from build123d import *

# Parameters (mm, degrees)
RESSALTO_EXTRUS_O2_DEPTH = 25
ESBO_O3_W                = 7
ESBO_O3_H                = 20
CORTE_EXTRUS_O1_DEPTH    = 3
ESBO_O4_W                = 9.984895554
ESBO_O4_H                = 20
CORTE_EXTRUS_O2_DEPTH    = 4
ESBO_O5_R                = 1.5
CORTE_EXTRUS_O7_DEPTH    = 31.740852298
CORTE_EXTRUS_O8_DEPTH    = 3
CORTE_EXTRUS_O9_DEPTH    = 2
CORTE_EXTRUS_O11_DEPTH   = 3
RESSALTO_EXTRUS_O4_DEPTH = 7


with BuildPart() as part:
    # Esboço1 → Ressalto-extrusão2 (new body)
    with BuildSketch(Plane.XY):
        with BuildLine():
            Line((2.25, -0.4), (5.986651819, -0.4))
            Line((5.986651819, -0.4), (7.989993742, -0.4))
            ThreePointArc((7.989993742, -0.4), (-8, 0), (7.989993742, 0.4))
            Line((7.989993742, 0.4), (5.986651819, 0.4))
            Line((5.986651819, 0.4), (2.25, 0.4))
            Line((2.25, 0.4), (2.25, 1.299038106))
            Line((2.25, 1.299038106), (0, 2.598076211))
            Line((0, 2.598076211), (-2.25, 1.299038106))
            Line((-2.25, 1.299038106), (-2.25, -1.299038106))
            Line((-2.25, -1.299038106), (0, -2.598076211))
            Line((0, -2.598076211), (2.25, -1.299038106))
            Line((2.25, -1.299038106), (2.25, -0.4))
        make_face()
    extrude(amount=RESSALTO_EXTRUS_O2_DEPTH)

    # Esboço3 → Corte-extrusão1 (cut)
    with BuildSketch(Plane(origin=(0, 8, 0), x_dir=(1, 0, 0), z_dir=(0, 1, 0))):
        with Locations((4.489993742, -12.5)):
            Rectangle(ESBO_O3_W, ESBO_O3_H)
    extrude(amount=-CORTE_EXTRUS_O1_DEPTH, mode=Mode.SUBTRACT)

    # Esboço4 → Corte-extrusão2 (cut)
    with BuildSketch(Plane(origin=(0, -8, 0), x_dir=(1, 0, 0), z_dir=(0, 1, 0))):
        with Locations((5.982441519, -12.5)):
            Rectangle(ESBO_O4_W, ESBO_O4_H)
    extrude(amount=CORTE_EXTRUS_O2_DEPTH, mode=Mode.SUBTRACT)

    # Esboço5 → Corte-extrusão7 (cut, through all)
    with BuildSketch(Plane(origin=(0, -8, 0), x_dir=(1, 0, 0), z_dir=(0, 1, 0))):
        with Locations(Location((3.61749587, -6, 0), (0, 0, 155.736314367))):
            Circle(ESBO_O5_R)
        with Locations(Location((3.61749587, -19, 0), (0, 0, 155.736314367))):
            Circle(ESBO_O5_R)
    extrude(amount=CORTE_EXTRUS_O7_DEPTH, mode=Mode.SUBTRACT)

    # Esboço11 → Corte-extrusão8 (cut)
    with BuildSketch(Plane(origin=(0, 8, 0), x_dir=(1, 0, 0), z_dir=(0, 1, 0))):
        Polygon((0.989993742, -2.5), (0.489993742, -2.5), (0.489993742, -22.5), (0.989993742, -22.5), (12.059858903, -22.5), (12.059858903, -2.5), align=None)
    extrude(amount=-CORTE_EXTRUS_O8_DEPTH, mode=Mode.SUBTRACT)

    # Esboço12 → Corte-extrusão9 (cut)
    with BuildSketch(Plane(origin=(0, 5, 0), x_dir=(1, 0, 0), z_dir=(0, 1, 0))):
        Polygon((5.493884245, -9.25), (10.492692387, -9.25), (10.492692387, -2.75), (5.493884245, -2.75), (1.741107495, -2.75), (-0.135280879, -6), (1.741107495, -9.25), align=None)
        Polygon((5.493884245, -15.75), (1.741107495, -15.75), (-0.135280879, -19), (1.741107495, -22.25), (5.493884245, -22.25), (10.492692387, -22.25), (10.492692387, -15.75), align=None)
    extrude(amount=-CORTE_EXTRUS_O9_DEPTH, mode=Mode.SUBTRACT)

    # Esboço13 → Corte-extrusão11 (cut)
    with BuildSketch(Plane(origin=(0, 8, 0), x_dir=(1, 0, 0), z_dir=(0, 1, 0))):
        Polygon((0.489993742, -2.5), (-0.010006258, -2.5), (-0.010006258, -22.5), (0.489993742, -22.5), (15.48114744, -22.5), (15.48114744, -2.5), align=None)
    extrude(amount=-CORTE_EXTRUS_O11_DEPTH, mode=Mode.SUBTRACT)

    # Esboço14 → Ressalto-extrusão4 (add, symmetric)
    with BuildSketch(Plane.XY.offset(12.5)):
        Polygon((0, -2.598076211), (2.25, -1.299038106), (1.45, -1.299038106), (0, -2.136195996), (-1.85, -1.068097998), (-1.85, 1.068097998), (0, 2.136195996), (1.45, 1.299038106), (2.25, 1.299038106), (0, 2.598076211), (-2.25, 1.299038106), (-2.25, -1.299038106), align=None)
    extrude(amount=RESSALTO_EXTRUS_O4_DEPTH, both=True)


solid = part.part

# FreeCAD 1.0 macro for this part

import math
import FreeCAD as App
import Part
import Sketcher
Q = App.Units.Quantity

doc = App.newDocument("Part")
body = doc.addObject("PartDesign::Body", "Body")

# Sketch on XY plane
sketch1 = body.newObject("Sketcher::SketchObject", "Sketch")
sketch1.AttachmentSupport = (doc.getObject("XY_Plane"), [""])
sketch1.MapMode = "FlatFace"
sketch1.addGeometry([
    Part.LineSegment(App.Vector(8, -0.4, 0), App.Vector(2.2, -0.4, 0)),  # 0
    Part.LineSegment(App.Vector(2.2, -0.4, 0), App.Vector(2.2, -1.3, 0)),  # 1
    Part.LineSegment(App.Vector(2.2, -1.3, 0), App.Vector(0, -2.6, 0)),  # 2
    Part.LineSegment(App.Vector(0, -2.6, 0), App.Vector(-2.2, -1.3, 0)),  # 3
    Part.LineSegment(App.Vector(-2.2, -1.3, 0), App.Vector(-2.2, 1.3, 0)),  # 4
    Part.LineSegment(App.Vector(-2.2, 1.3, 0), App.Vector(0, 2.6, 0)),  # 5
    Part.LineSegment(App.Vector(0, 2.6, 0), App.Vector(2.2, 1.3, 0)),  # 6
    Part.LineSegment(App.Vector(2.2, 1.3, 0), App.Vector(2.2, 0.4, 0)),  # 7
    Part.LineSegment(App.Vector(2.2, 0.4, 0), App.Vector(8, 0.4, 0)),  # 8
    Part.ArcOfCircle(Part.Circle(App.Vector(0, 0, 0), App.Vector(0, 0, 1), 8), math.radians(3), math.radians(357)),  # 9
], False)
sketch1.addConstraint([
    Sketcher.Constraint("Coincident", 0, 2, 1, 1),
    Sketcher.Constraint("Coincident", 1, 2, 2, 1),
    Sketcher.Constraint("Coincident", 2, 2, 3, 1),
    Sketcher.Constraint("Coincident", 3, 2, 4, 1),
    Sketcher.Constraint("Coincident", 4, 2, 5, 1),
    Sketcher.Constraint("Coincident", 5, 2, 6, 1),
    Sketcher.Constraint("Coincident", 6, 2, 7, 1),
    Sketcher.Constraint("Coincident", 7, 2, 8, 1),
    Sketcher.Constraint("Coincident", 8, 2, 9, 1),
    Sketcher.Constraint("Coincident", 9, 2, 0, 1),
    Sketcher.Constraint("Horizontal", 0),
    Sketcher.Constraint("Vertical", 1),
    Sketcher.Constraint("Vertical", 4),
    Sketcher.Constraint("Vertical", 7),
    Sketcher.Constraint("Horizontal", 8),
    Sketcher.Constraint("Coincident", 9, 3, -1, 1),
    Sketcher.Constraint("Symmetric", 1, 2, 4, 2, -1, 1),
    Sketcher.Constraint("Symmetric", 2, 2, 5, 2, -1, 1),
    Sketcher.Constraint("Symmetric", 3, 2, 6, 2, -1, 1),
    Sketcher.Constraint("PointOnObject", 2, 2, -2),
    Sketcher.Constraint("Horizontal", 1, 2, 3, 2),
    Sketcher.Constraint("Vertical", 8, 2, 9, 2),
    Sketcher.Constraint("Radius", 9, Q("8 mm")),
    Sketcher.Constraint("Angle", 2, Q("-150 deg")),
    Sketcher.Constraint("DistanceY", 0, 2, -1, 1, Q("0.4 mm")),
    Sketcher.Constraint("DistanceX", 3, 2, 1, 2, Q("4.5 mm")),
    Sketcher.Constraint("DistanceY", 1, 2, 1, 1, Q("0.899038 mm")),
])
pad1 = body.newObject("PartDesign::Pad", "Pad")
pad1.Profile = sketch1
pad1.Length = 25

# Sketch on XZ plane
sketch2 = body.newObject("Sketcher::SketchObject", "Sketch001")
sketch2.AttachmentSupport = (doc.getObject("XZ_Plane"), [""])
sketch2.MapMode = "FlatFace"
sketch2.AttachmentOffset = App.Placement(App.Vector(0, 0, -8), App.Rotation())
sketch2.addGeometry([
    Part.LineSegment(App.Vector(1, 2, 0), App.Vector(1, 22, 0)),
    Part.LineSegment(App.Vector(1, 22, 0), App.Vector(8, 22, 0)),
    Part.LineSegment(App.Vector(8, 22, 0), App.Vector(8, 2, 0)),
    Part.LineSegment(App.Vector(8, 2, 0), App.Vector(1, 2, 0)),
], False)
sketch2.addConstraint([
    Sketcher.Constraint("Coincident", 0, 2, 1, 1),
    Sketcher.Constraint("Coincident", 1, 2, 2, 1),
    Sketcher.Constraint("Coincident", 2, 2, 3, 1),
    Sketcher.Constraint("Coincident", 3, 2, 0, 1),
    Sketcher.Constraint("Vertical", 0),
    Sketcher.Constraint("Horizontal", 1),
    Sketcher.Constraint("Vertical", 2),
    Sketcher.Constraint("Horizontal", 3),
    Sketcher.Constraint("DistanceX", 1, 1, 1, 2, Q("7 mm")),
    Sketcher.Constraint("DistanceY", 0, 1, 0, 2, Q("20 mm")),
    Sketcher.Constraint("DistanceY", -1, 1, 0, 2, Q("22.5 mm")),
    Sketcher.Constraint("DistanceX", -1, 1, 0, 2, Q("0.989994 mm")),
])
pocket1 = body.newObject("PartDesign::Pocket", "Pocket")
pocket1.Profile = sketch2
pocket1.Length = 3
pocket1.Reversed = True

# Sketch on XZ plane
sketch3 = body.newObject("Sketcher::SketchObject", "Sketch002")
sketch3.AttachmentSupport = (doc.getObject("XZ_Plane"), [""])
sketch3.MapMode = "FlatFace"
sketch3.AttachmentOffset = App.Placement(App.Vector(0, 0, 8), App.Rotation())
sketch3.addGeometry([
    Part.LineSegment(App.Vector(1, 2, 0), App.Vector(1, 22, 0)),
    Part.LineSegment(App.Vector(1, 22, 0), App.Vector(11, 22, 0)),
    Part.LineSegment(App.Vector(11, 22, 0), App.Vector(11, 2, 0)),
    Part.LineSegment(App.Vector(11, 2, 0), App.Vector(1, 2, 0)),
], False)
sketch3.addConstraint([
    Sketcher.Constraint("Coincident", 0, 2, 1, 1),
    Sketcher.Constraint("Coincident", 1, 2, 2, 1),
    Sketcher.Constraint("Coincident", 2, 2, 3, 1),
    Sketcher.Constraint("Coincident", 3, 2, 0, 1),
    Sketcher.Constraint("Vertical", 0),
    Sketcher.Constraint("Horizontal", 1),
    Sketcher.Constraint("Vertical", 2),
    Sketcher.Constraint("Horizontal", 3),
    Sketcher.Constraint("DistanceY", 0, 1, 0, 2, Q("20 mm")),
    Sketcher.Constraint("DistanceY", -1, 1, 0, 2, Q("22.5 mm")),
    Sketcher.Constraint("DistanceX", 1, 1, 1, 2, Q("9.984896 mm")),
    Sketcher.Constraint("DistanceX", -1, 1, 1, 2, Q("10.974889 mm")),
])
pocket2 = body.newObject("PartDesign::Pocket", "Pocket001")
pocket2.Profile = sketch3
pocket2.Length = 4

# Sketch on XZ plane
sketch4 = body.newObject("Sketcher::SketchObject", "Sketch003")
sketch4.AttachmentSupport = (doc.getObject("XZ_Plane"), [""])
sketch4.MapMode = "FlatFace"
sketch4.AttachmentOffset = App.Placement(App.Vector(0, 0, 8), App.Rotation())
sketch4.addGeometry([
    Part.Circle(App.Vector(3.6, 6, 0), App.Vector(0, 0, 1), 1.5),
    Part.Circle(App.Vector(3.6, 19, 0), App.Vector(0, 0, 1), 1.5),
], False)
sketch4.addConstraint([
    Sketcher.Constraint("Equal", 0, 1),
    Sketcher.Constraint("Vertical", 0, 3, 1, 3),
    Sketcher.Constraint("Diameter", 0, Q("3 mm")),
    Sketcher.Constraint("DistanceY", -1, 1, 0, 3, Q("6 mm")),
    Sketcher.Constraint("DistanceY", -1, 1, 1, 3, Q("19 mm")),
    Sketcher.Constraint("DistanceX", -1, 1, 0, 3, Q("3.617496 mm")),
])
pocket3 = body.newObject("PartDesign::Pocket", "Pocket002")
pocket3.Profile = sketch4
pocket3.Type = "ThroughAll"

# Sketch on XZ plane
sketch5 = body.newObject("Sketcher::SketchObject", "Sketch004")
sketch5.AttachmentSupport = (doc.getObject("XZ_Plane"), [""])
sketch5.MapMode = "FlatFace"
sketch5.AttachmentOffset = App.Placement(App.Vector(0, 0, -8), App.Rotation())
sketch5.addGeometry([
    Part.LineSegment(App.Vector(0, 2, 0), App.Vector(0, 22, 0)),
    Part.LineSegment(App.Vector(0, 22, 0), App.Vector(12, 22, 0)),
    Part.LineSegment(App.Vector(12, 22, 0), App.Vector(12, 2, 0)),
    Part.LineSegment(App.Vector(12, 2, 0), App.Vector(0, 2, 0)),
], False)
sketch5.addConstraint([
    Sketcher.Constraint("Coincident", 0, 2, 1, 1),
    Sketcher.Constraint("Coincident", 1, 2, 2, 1),
    Sketcher.Constraint("Coincident", 2, 2, 3, 1),
    Sketcher.Constraint("Coincident", 3, 2, 0, 1),
    Sketcher.Constraint("Vertical", 0),
    Sketcher.Constraint("Horizontal", 1),
    Sketcher.Constraint("Vertical", 2),
    Sketcher.Constraint("Horizontal", 3),
    Sketcher.Constraint("DistanceY", 0, 1, 0, 2, Q("20 mm")),
    Sketcher.Constraint("DistanceY", -1, 1, 0, 2, Q("22.5 mm")),
    Sketcher.Constraint("DistanceX", 1, 1, 1, 2, Q("11.569865 mm")),
    Sketcher.Constraint("DistanceX", -1, 1, 1, 2, Q("12.059859 mm")),
])
pocket4 = body.newObject("PartDesign::Pocket", "Pocket003")
pocket4.Profile = sketch5
pocket4.Length = 3
pocket4.Reversed = True

# Sketch on XZ plane
sketch6 = body.newObject("Sketcher::SketchObject", "Sketch005")
sketch6.AttachmentSupport = (doc.getObject("XZ_Plane"), [""])
sketch6.MapMode = "FlatFace"
sketch6.AttachmentOffset = App.Placement(App.Vector(0, 0, -5), App.Rotation())
sketch6.addGeometry([
    Part.LineSegment(App.Vector(10.5, 9.2, 0), App.Vector(10.5, 2.8, 0)),  # 0
    Part.LineSegment(App.Vector(10.5, 2.8, 0), App.Vector(1.7, 2.8, 0)),  # 1
    Part.LineSegment(App.Vector(1.7, 2.8, 0), App.Vector(-0.1, 6, 0)),  # 2
    Part.LineSegment(App.Vector(-0.1, 6, 0), App.Vector(1.7, 9.2, 0)),  # 3
    Part.LineSegment(App.Vector(1.7, 9.2, 0), App.Vector(10.5, 9.2, 0)),  # 4
    Part.LineSegment(App.Vector(1.7, 15.8, 0), App.Vector(-0.1, 19, 0)),  # 5
    Part.LineSegment(App.Vector(-0.1, 19, 0), App.Vector(1.7, 22.2, 0)),  # 6
    Part.LineSegment(App.Vector(1.7, 22.2, 0), App.Vector(10.5, 22.2, 0)),  # 7
    Part.LineSegment(App.Vector(10.5, 22.2, 0), App.Vector(10.5, 15.8, 0)),  # 8
    Part.LineSegment(App.Vector(10.5, 15.8, 0), App.Vector(1.7, 15.8, 0)),  # 9
], False)
sketch6.addConstraint([
    Sketcher.Constraint("Coincident", 0, 2, 1, 1),
    Sketcher.Constraint("Coincident", 1, 2, 2, 1),
    Sketcher.Constraint("Coincident", 2, 2, 3, 1),
    Sketcher.Constraint("Coincident", 3, 2, 4, 1),
    Sketcher.Constraint("Coincident", 4, 2, 0, 1),
    Sketcher.Constraint("Coincident", 5, 2, 6, 1),
    Sketcher.Constraint("Coincident", 6, 2, 7, 1),
    Sketcher.Constraint("Coincident", 7, 2, 8, 1),
    Sketcher.Constraint("Coincident", 8, 2, 9, 1),
    Sketcher.Constraint("Coincident", 9, 2, 5, 1),
    Sketcher.Constraint("Vertical", 0),
    Sketcher.Constraint("Horizontal", 1),
    Sketcher.Constraint("Horizontal", 4),
    Sketcher.Constraint("Horizontal", 7),
    Sketcher.Constraint("Vertical", 8),
    Sketcher.Constraint("Horizontal", 9),
    Sketcher.Constraint("Parallel", 2, 5),
    Sketcher.Constraint("Parallel", 3, 6),
    Sketcher.Constraint("Vertical", 1, 2, 3, 2),
    Sketcher.Constraint("Vertical", 2, 2, 5, 2),
    Sketcher.Constraint("Vertical", 3, 2, 6, 2),
    Sketcher.Constraint("Vertical", 4, 2, 7, 2),
    Sketcher.Constraint("Vertical", 6, 2, 9, 2),
    Sketcher.Constraint("Equal", 2, 3),
    Sketcher.Constraint("Angle", 2, Q("120 deg")),
    Sketcher.Constraint("DistanceY", 0, 2, 0, 1, Q("6.5 mm")),
    Sketcher.Constraint("DistanceY", -1, 1, 2, 2, Q("6 mm")),
    Sketcher.Constraint("DistanceY", -1, 1, 5, 2, Q("19 mm")),
    Sketcher.Constraint("DistanceX", 1, 2, 1, 1, Q("8.751585 mm")),
    Sketcher.Constraint("DistanceX", 2, 2, -1, 1, Q("0.135281 mm")),
])
pocket5 = body.newObject("PartDesign::Pocket", "Pocket004")
pocket5.Profile = sketch6
pocket5.Length = 2
pocket5.Reversed = True

# Sketch on XZ plane
sketch7 = body.newObject("Sketcher::SketchObject", "Sketch006")
sketch7.AttachmentSupport = (doc.getObject("XZ_Plane"), [""])
sketch7.MapMode = "FlatFace"
sketch7.AttachmentOffset = App.Placement(App.Vector(0, 0, -8), App.Rotation())
sketch7.addGeometry([
    Part.LineSegment(App.Vector(0, 2, 0), App.Vector(0, 22, 0)),
    Part.LineSegment(App.Vector(0, 22, 0), App.Vector(15, 22, 0)),
    Part.LineSegment(App.Vector(15, 22, 0), App.Vector(15, 2, 0)),
    Part.LineSegment(App.Vector(15, 2, 0), App.Vector(0, 2, 0)),
], False)
sketch7.addConstraint([
    Sketcher.Constraint("Coincident", 0, 2, 1, 1),
    Sketcher.Constraint("Coincident", 1, 2, 2, 1),
    Sketcher.Constraint("Coincident", 2, 2, 3, 1),
    Sketcher.Constraint("Coincident", 3, 2, 0, 1),
    Sketcher.Constraint("Vertical", 0),
    Sketcher.Constraint("Horizontal", 1),
    Sketcher.Constraint("Vertical", 2),
    Sketcher.Constraint("Horizontal", 3),
    Sketcher.Constraint("DistanceY", 0, 1, 0, 2, Q("20 mm")),
    Sketcher.Constraint("DistanceY", -1, 1, 0, 2, Q("22.5 mm")),
    Sketcher.Constraint("DistanceX", 1, 1, 1, 2, Q("15.491154 mm")),
    Sketcher.Constraint("DistanceX", 0, 2, -1, 1, Q("0.010006 mm")),
])
pocket6 = body.newObject("PartDesign::Pocket", "Pocket005")
pocket6.Profile = sketch7
pocket6.Length = 3
pocket6.Reversed = True

# Sketch on XY plane
sketch8 = body.newObject("Sketcher::SketchObject", "Sketch007")
sketch8.AttachmentSupport = (doc.getObject("XY_Plane"), [""])
sketch8.MapMode = "FlatFace"
sketch8.AttachmentOffset = App.Placement(App.Vector(0, 0, 12.5), App.Rotation())
sketch8.addGeometry([
    Part.LineSegment(App.Vector(0, -2.6, 0), App.Vector(2.2, -1.3, 0)),  # 0
    Part.LineSegment(App.Vector(2.2, -1.3, 0), App.Vector(1.4, -1.3, 0)),  # 1
    Part.LineSegment(App.Vector(1.4, -1.3, 0), App.Vector(0, -2.1, 0)),  # 2
    Part.LineSegment(App.Vector(0, -2.1, 0), App.Vector(-1.9, -1.1, 0)),  # 3
    Part.LineSegment(App.Vector(-1.9, -1.1, 0), App.Vector(-1.9, 1.1, 0)),  # 4
    Part.LineSegment(App.Vector(-1.9, 1.1, 0), App.Vector(0, 2.1, 0)),  # 5
    Part.LineSegment(App.Vector(0, 2.1, 0), App.Vector(1.4, 1.3, 0)),  # 6
    Part.LineSegment(App.Vector(1.4, 1.3, 0), App.Vector(2.2, 1.3, 0)),  # 7
    Part.LineSegment(App.Vector(2.2, 1.3, 0), App.Vector(0, 2.6, 0)),  # 8
    Part.LineSegment(App.Vector(0, 2.6, 0), App.Vector(-2.2, 1.3, 0)),  # 9
    Part.LineSegment(App.Vector(-2.2, 1.3, 0), App.Vector(-2.2, -1.3, 0)),  # 10
    Part.LineSegment(App.Vector(-2.2, -1.3, 0), App.Vector(0, -2.6, 0)),  # 11
], False)
sketch8.addConstraint([
    Sketcher.Constraint("Coincident", 0, 2, 1, 1),
    Sketcher.Constraint("Coincident", 1, 2, 2, 1),
    Sketcher.Constraint("Coincident", 2, 2, 3, 1),
    Sketcher.Constraint("Coincident", 3, 2, 4, 1),
    Sketcher.Constraint("Coincident", 4, 2, 5, 1),
    Sketcher.Constraint("Coincident", 5, 2, 6, 1),
    Sketcher.Constraint("Coincident", 6, 2, 7, 1),
    Sketcher.Constraint("Coincident", 7, 2, 8, 1),
    Sketcher.Constraint("Coincident", 8, 2, 9, 1),
    Sketcher.Constraint("Coincident", 9, 2, 10, 1),
    Sketcher.Constraint("Coincident", 10, 2, 11, 1),
    Sketcher.Constraint("Coincident", 11, 2, 0, 1),
    Sketcher.Constraint("Horizontal", 1),
    Sketcher.Constraint("Vertical", 4),
    Sketcher.Constraint("Horizontal", 7),
    Sketcher.Constraint("Vertical", 10),
    Sketcher.Constraint("Symmetric", 2, 2, 5, 2, -1, 1),
    Sketcher.Constraint("Symmetric", 0, 2, 9, 2, -1, 1),
    Sketcher.Constraint("Symmetric", 7, 2, 10, 2, -1, 1),
    Sketcher.Constraint("Symmetric", 8, 2, 11, 2, -1, 1),
    Sketcher.Constraint("Symmetric", 1, 2, 6, 2, -1),
    Sketcher.Constraint("PointOnObject", 2, 2, -2),
    Sketcher.Constraint("PointOnObject", 8, 2, -2),
    Sketcher.Constraint("Parallel", 0, 2),
    Sketcher.Constraint("Parallel", 2, 5),
    Sketcher.Constraint("Parallel", 3, 6),
    Sketcher.Constraint("Angle", 0, Q("30 deg")),
    Sketcher.Constraint("DistanceX", 1, 2, 1, 1, Q("0.8 mm")),
    Sketcher.Constraint("DistanceX", 3, 2, 1, 2, Q("3.3 mm")),
    Sketcher.Constraint("DistanceX", 9, 2, 4, 2, Q("0.4 mm")),
    Sketcher.Constraint("DistanceY", 4, 1, 4, 2, Q("2.136196 mm")),
])
pad2 = body.newObject("PartDesign::Pad", "Pad001")
pad2.Profile = sketch8
pad2.Length = 14
pad2.Midplane = True

doc.recompute()
